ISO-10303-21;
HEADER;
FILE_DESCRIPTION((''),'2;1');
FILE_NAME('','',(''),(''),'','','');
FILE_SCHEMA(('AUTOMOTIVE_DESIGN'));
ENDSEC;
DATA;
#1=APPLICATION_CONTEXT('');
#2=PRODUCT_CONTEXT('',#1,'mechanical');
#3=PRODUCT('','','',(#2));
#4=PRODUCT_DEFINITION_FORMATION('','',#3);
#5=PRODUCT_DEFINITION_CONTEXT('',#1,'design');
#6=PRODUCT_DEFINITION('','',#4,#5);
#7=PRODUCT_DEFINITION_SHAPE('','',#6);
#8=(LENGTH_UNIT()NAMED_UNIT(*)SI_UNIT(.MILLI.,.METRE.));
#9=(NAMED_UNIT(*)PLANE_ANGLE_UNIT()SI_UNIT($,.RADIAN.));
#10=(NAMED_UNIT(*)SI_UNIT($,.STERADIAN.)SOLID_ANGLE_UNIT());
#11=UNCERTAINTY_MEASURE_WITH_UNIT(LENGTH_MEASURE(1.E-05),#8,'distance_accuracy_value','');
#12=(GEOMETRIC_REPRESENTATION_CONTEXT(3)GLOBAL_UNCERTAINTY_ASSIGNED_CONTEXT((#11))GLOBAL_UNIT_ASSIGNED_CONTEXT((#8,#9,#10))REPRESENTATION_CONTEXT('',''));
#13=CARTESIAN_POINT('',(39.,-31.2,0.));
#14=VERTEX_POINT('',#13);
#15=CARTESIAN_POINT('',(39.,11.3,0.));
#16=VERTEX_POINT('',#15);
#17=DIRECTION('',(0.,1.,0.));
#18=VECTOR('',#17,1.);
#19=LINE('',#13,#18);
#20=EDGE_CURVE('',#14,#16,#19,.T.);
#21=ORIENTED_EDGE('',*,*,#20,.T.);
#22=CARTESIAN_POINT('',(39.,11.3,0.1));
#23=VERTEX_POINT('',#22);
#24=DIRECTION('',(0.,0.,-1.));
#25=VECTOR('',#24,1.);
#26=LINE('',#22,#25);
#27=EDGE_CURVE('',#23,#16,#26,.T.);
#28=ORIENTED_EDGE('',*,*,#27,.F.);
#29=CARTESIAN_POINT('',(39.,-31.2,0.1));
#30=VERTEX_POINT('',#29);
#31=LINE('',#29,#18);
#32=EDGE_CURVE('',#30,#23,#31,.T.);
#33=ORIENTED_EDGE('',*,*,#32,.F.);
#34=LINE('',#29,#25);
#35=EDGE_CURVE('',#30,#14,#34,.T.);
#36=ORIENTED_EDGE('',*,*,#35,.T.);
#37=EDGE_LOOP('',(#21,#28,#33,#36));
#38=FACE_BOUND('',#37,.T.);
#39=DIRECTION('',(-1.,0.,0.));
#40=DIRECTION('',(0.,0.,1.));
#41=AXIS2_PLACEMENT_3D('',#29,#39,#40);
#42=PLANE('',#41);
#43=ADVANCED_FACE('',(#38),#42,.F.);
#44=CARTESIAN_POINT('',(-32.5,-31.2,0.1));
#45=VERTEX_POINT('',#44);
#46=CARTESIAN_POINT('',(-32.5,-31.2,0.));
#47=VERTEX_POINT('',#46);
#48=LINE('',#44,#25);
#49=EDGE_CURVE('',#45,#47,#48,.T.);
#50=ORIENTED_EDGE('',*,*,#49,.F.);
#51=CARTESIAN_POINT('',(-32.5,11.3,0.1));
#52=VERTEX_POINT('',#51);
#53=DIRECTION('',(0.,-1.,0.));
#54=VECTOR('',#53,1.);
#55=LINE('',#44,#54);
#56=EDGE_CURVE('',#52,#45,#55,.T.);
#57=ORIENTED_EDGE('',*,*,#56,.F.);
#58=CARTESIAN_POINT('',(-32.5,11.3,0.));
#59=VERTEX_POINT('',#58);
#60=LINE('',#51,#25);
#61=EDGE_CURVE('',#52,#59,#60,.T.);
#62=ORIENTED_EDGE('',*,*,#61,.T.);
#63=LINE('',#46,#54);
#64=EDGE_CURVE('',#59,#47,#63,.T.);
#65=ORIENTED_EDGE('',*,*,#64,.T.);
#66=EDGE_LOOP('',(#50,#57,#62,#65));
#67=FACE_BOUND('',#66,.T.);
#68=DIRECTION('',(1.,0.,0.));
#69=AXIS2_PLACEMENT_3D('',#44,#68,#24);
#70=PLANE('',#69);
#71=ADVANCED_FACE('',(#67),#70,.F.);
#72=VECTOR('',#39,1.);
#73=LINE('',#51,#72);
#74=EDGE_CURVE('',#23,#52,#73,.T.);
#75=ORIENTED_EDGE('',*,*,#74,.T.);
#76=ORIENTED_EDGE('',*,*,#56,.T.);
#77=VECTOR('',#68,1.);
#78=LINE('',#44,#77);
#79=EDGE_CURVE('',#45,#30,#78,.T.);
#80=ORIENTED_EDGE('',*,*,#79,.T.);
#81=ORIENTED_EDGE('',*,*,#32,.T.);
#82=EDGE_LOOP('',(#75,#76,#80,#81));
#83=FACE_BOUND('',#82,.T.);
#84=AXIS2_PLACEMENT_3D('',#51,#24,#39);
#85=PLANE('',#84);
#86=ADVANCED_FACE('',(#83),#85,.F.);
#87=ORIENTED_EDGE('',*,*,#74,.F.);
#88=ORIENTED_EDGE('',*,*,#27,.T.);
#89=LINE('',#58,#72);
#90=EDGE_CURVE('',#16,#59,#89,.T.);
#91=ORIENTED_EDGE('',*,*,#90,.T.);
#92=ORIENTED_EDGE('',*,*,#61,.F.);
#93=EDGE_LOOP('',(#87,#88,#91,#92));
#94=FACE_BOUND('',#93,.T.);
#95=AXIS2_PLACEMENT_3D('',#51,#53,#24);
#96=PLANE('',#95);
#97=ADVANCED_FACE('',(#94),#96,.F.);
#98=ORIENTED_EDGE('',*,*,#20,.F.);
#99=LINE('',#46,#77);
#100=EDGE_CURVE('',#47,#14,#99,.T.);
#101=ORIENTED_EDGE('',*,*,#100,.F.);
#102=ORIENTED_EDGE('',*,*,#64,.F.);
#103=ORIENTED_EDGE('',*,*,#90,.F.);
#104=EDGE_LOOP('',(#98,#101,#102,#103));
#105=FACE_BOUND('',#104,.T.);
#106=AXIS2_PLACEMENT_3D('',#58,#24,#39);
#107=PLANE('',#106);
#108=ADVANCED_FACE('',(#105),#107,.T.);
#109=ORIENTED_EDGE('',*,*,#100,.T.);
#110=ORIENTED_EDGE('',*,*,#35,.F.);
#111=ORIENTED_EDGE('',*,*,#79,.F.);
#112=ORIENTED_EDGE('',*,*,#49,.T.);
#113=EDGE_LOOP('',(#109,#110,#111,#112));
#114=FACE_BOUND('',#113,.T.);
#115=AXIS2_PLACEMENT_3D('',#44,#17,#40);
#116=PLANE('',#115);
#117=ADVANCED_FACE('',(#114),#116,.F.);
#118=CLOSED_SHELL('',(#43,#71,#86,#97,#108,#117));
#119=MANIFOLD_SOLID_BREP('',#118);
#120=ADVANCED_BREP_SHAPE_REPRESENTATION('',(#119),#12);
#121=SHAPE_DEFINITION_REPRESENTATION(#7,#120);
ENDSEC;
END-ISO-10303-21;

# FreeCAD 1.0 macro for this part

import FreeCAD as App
import Part
import Sketcher

V = App.Vector

doc = App.newDocument("Part")
body = doc.addObject("PartDesign::Body", "Body")

# Sketch on XY plane
sketch1 = doc.addObject("Sketcher::SketchObject", "Sketch")
body.addObject(sketch1)
sketch1.AttachmentSupport = (doc.XY_Plane, [""])
sketch1.MapMode = "FlatFace"
sketch1.addGeometry([
    Part.LineSegment(V(-32, 11, 0), V(-32, -31, 0)),
    Part.LineSegment(V(-32, -31, 0), V(39, -31, 0)),
    Part.LineSegment(V(39, -31, 0), V(39, 11, 0)),
    Part.LineSegment(V(39, 11, 0), V(-32, 11, 0)),
], False)
sketch1.addConstraint([
    Sketcher.Constraint("Coincident", 0, 2, 1, 1),
    Sketcher.Constraint("Coincident", 1, 2, 2, 1),
    Sketcher.Constraint("Coincident", 2, 2, 3, 1),
    Sketcher.Constraint("Coincident", 3, 2, 0, 1),
    Sketcher.Constraint("Vertical", 0),
    Sketcher.Constraint("Horizontal", 1),
    Sketcher.Constraint("Vertical", 2),
    Sketcher.Constraint("Horizontal", 3),
    Sketcher.Constraint("DistanceX", 1, 1, 1, 2, 71.5),
    Sketcher.Constraint("DistanceY", 0, 2, 0, 1, 42.5),
    Sketcher.Constraint("DistanceX", -1, 1, 1, 2, 39.0),
    Sketcher.Constraint("DistanceY", 0, 2, -1, 1, 31.2),
])
pad1 = doc.addObject("PartDesign::Pad", "Pad")
body.addObject(pad1)
pad1.Profile = sketch1
pad1.Length = 0.1

doc.recompute()
